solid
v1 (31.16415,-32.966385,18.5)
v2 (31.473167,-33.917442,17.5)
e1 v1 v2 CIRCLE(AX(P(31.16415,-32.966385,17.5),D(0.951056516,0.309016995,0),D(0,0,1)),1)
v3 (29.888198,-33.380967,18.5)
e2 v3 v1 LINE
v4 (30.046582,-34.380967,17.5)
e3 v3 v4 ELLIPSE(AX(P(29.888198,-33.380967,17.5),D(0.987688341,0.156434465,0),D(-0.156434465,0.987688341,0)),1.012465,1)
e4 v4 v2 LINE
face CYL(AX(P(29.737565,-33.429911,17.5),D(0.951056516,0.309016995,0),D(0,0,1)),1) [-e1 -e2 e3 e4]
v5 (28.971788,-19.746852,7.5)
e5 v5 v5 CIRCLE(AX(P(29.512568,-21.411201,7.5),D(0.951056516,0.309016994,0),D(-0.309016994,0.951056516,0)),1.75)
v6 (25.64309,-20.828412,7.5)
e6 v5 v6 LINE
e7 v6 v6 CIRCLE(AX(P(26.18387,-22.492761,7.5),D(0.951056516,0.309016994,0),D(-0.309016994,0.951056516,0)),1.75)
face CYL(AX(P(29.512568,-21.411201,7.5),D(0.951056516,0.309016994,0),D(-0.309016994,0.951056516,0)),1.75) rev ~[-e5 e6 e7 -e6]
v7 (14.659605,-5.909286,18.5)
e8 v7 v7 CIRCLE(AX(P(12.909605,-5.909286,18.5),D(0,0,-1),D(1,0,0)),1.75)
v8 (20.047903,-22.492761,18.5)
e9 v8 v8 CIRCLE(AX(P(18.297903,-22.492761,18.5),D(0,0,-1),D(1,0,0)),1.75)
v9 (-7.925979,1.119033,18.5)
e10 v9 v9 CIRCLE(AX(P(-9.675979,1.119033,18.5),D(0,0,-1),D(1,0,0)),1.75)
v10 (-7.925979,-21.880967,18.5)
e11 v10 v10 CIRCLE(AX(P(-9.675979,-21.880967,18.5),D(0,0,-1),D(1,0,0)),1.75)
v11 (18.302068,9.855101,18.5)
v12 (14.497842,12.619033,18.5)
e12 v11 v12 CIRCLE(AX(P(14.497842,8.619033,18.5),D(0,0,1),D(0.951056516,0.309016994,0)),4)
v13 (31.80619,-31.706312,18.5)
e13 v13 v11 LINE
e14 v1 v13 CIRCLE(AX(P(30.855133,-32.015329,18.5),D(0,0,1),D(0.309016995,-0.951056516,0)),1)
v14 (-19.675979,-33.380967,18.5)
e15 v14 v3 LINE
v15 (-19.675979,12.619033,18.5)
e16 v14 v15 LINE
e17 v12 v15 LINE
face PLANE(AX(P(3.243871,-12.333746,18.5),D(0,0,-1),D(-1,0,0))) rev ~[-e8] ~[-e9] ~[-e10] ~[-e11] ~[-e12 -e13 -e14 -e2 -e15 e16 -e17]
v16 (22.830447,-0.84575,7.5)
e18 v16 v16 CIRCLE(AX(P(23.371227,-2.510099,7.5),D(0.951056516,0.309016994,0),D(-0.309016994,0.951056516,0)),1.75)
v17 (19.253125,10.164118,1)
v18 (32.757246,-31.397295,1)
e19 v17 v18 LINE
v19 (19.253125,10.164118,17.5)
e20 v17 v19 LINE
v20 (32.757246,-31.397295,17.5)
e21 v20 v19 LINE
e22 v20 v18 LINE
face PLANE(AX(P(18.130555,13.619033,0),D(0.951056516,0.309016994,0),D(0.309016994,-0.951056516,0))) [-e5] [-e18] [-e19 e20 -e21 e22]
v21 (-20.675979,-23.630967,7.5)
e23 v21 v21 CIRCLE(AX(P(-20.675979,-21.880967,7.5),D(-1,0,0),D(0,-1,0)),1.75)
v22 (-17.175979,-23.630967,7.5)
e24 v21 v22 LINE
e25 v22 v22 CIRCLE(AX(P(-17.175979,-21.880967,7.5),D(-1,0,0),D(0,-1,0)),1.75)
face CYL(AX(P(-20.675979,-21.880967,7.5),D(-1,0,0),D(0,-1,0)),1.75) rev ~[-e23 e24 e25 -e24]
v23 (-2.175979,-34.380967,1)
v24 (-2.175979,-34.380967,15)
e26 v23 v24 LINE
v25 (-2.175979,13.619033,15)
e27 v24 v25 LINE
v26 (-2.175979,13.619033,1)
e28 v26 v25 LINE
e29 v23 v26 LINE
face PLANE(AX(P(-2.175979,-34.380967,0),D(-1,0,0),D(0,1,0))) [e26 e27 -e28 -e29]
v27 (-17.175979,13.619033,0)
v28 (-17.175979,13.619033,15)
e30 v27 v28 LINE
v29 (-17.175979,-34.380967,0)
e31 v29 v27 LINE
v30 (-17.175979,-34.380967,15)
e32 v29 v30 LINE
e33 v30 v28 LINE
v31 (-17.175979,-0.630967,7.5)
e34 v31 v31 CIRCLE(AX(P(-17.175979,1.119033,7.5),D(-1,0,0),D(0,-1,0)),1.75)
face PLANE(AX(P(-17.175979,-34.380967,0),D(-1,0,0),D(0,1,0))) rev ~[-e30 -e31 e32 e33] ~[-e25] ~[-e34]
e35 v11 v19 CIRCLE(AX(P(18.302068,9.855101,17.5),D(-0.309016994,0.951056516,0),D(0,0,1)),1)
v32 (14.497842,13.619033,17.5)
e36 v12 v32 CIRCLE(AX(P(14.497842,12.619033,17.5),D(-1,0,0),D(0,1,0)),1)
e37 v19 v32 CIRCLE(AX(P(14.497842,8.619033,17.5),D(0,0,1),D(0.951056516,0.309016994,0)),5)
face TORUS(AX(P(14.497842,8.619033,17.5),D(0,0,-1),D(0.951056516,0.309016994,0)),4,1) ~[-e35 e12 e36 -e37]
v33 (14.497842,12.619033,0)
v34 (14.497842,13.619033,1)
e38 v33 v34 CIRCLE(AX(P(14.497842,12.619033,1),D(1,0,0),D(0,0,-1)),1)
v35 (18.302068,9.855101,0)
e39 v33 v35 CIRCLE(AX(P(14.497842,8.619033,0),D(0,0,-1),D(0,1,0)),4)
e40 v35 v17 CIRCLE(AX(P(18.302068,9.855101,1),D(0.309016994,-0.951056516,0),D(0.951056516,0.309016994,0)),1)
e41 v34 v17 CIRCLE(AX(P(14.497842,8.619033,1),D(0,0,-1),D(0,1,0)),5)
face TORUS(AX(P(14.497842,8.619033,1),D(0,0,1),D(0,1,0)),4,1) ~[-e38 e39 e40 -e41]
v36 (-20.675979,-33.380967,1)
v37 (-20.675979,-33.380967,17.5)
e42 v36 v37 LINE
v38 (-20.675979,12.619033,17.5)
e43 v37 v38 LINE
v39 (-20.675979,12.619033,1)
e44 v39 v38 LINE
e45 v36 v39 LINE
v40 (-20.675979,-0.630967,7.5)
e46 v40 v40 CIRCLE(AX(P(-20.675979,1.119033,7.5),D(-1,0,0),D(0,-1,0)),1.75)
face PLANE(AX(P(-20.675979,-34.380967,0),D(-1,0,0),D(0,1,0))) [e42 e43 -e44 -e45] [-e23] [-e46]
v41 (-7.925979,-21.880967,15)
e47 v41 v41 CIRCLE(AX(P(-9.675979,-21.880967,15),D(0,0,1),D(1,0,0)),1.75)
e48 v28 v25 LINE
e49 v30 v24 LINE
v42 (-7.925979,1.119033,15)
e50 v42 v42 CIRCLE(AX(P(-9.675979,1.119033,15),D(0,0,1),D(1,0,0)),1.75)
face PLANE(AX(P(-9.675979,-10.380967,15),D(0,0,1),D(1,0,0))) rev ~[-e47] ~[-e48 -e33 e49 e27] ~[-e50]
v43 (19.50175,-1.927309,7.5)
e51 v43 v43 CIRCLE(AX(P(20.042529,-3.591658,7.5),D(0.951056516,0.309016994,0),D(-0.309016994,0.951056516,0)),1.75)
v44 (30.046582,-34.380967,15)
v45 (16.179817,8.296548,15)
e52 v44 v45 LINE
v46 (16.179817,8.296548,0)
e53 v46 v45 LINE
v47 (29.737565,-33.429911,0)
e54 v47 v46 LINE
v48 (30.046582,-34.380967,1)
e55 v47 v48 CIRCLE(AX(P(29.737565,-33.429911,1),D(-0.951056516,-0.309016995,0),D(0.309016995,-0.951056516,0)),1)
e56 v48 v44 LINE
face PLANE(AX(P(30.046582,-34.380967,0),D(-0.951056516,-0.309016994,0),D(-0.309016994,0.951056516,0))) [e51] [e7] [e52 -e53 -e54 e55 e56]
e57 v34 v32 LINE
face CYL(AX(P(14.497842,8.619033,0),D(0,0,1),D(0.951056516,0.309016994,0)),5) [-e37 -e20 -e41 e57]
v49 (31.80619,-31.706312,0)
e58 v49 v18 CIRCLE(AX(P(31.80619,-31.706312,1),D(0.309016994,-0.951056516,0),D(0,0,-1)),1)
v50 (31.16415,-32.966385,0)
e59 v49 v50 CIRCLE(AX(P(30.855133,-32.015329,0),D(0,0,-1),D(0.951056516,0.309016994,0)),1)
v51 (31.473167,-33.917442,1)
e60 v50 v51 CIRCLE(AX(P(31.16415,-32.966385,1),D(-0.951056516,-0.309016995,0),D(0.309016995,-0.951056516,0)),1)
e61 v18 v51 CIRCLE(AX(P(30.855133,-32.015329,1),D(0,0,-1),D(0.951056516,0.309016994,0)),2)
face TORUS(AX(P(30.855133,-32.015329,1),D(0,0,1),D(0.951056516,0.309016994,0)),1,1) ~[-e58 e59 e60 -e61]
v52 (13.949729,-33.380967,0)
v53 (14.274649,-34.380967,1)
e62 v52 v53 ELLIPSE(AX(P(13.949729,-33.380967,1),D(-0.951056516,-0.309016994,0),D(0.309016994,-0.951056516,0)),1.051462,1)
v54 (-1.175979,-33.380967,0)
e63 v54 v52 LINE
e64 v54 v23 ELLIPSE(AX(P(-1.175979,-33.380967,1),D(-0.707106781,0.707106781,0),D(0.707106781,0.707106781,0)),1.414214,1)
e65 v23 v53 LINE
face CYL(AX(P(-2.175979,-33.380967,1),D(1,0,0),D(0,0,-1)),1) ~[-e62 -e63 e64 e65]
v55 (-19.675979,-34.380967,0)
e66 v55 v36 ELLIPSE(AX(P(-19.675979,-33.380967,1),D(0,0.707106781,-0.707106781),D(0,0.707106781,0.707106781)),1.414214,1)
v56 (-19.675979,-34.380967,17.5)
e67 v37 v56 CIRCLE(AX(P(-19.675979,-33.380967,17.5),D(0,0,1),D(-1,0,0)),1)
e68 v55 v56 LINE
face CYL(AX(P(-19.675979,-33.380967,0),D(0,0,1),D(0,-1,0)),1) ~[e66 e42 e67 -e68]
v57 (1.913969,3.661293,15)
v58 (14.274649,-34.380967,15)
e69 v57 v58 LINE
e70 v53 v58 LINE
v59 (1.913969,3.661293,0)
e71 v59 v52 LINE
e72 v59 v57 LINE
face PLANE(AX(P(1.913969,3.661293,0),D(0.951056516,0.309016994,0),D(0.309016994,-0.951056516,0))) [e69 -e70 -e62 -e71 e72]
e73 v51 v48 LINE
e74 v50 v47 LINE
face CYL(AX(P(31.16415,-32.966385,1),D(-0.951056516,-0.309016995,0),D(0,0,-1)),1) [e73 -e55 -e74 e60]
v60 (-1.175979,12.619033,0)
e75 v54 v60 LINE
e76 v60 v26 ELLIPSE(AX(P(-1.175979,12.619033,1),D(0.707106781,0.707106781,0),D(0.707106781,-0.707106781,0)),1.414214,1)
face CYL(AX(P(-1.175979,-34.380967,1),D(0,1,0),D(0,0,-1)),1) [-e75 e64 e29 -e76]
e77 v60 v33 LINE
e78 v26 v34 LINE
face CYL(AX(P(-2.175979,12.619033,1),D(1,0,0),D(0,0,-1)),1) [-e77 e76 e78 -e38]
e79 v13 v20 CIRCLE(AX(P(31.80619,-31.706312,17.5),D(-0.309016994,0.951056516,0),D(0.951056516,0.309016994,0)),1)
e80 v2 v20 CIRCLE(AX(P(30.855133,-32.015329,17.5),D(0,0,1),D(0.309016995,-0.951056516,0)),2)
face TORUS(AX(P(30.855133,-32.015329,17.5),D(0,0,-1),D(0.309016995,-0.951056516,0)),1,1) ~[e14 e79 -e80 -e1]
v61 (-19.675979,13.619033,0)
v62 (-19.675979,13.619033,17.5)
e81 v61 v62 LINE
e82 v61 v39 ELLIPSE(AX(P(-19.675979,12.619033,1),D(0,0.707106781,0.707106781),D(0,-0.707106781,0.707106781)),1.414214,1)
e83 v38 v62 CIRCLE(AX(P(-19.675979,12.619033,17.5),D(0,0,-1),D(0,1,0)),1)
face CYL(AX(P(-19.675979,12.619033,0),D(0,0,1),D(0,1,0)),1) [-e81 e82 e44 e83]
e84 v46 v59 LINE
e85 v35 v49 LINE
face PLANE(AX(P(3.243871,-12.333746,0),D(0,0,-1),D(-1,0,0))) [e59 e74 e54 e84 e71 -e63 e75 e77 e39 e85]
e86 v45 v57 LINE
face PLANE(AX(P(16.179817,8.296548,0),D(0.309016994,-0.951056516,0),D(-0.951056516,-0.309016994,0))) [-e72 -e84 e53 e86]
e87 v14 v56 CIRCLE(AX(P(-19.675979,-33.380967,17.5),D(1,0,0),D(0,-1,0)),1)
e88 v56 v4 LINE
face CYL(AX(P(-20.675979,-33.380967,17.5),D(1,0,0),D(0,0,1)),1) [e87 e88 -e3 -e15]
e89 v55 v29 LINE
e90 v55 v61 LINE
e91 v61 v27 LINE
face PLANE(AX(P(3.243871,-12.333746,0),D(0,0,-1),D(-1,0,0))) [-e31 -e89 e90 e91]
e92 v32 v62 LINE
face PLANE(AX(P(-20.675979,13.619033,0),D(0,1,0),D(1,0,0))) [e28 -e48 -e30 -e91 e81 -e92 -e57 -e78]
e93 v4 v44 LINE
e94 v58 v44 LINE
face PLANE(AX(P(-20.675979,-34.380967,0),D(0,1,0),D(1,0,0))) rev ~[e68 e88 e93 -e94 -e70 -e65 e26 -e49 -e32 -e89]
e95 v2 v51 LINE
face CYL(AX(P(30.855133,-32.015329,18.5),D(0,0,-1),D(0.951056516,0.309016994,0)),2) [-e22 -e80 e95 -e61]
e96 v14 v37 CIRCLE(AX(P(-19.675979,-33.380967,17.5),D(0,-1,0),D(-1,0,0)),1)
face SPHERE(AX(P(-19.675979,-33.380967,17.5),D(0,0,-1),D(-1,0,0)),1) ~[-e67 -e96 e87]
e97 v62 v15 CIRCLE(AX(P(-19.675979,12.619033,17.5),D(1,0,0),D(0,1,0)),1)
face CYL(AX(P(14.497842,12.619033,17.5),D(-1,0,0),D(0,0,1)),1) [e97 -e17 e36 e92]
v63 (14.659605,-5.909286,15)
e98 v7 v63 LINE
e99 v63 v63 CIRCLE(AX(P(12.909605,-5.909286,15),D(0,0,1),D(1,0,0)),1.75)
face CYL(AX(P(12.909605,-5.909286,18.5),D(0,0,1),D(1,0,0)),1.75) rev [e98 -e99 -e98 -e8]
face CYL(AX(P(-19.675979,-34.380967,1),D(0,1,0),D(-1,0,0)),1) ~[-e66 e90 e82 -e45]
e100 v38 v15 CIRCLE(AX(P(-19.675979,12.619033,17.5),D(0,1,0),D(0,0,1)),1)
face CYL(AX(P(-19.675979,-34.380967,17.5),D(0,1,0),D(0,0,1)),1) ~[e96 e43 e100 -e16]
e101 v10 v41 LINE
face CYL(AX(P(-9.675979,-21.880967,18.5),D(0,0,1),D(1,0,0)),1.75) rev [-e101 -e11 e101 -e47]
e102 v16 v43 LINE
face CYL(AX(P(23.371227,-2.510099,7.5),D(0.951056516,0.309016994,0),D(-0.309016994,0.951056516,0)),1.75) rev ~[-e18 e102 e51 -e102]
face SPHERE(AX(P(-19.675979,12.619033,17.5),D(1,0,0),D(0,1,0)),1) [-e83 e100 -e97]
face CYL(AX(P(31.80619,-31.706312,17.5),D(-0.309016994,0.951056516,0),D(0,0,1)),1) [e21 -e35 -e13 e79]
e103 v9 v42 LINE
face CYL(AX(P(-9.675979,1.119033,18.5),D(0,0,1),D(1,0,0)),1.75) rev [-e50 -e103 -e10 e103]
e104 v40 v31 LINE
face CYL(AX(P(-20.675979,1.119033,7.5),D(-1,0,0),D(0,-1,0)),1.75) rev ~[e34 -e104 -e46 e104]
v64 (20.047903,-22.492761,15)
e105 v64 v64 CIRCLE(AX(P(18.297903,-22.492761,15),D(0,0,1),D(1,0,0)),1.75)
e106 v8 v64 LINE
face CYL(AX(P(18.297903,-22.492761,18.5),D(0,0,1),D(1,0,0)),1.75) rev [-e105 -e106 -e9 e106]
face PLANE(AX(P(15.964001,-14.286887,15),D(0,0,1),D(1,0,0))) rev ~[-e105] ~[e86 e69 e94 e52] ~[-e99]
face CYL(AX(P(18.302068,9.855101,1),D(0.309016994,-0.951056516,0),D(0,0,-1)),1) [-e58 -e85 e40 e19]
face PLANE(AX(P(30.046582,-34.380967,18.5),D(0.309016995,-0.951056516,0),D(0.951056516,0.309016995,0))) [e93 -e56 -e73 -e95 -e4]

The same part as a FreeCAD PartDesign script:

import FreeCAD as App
import Part
import Sketcher
from FreeCAD import Vector
Q = App.Units.Quantity


def edges_at(feature, points):
    """Names of the edges that pass closest to the given points."""
    edges = feature.Shape.Edges
    near = lambda p: min(range(len(edges)), key=lambda i: edges[i].distToShape(Part.Vertex(*p))[0])
    return sorted({f"Edge{near(p) + 1}" for p in points})


def add_polygon(sketch, points):
    """Adds a closed chain of lines whose ends are joined by coincident constraints."""
    first, n = sketch.GeometryCount, len(points)
    for a, b in zip(points, points[1:] + points[:1]):
        sketch.addGeometry(Part.LineSegment(App.Vector(*a, 0), App.Vector(*b, 0)), False)
    for i in range(n):
        sketch.addConstraint(Sketcher.Constraint("Coincident", first + i, 2, first + (i + 1) % n, 1))

doc = App.newDocument("Part")
params = doc.addObject("Spreadsheet::Sheet", "Params")
for row, (alias, value) in enumerate([
    ("sketch1_height", "48 mm"),
    ("pad1_length", "18.5 mm"),
    ("sketch2_width", "15 mm"),
    ("sketch2_height", "48 mm"),
    ("sketch2_length", "15 mm"),
    ("sketch2_length2", "40 mm"),
    ("pocket1_length", "15 mm"),
    ("sketch3_diameter", "3.5 mm"),
    ("pocket2_length", "3.5 mm"),
    ("sketch4_diameter", "3.5 mm"),
    ("pocket3_length", "4 mm"),
    ("sketch5_diameter", "3.5 mm"),
    ("pocket4_length", "4 mm"),
    ("sketch6_length", "3.5 mm"),
    ("pocket5_length", "19 mm"),
    ("fillet_radius", "2 mm"),
    ("fillet2_radius", "5 mm"),
    ("fillet3_radius", "1 mm"),
], start=1):
    params.set(f"A{row}", alias)
    params.set(f"B{row}", "=" + value)
    params.setAlias(f"B{row}", alias)

body = doc.addObject("PartDesign::Body", "Body")

sketch1 = body.newObject("Sketcher::SketchObject", "Sketch")
sketch1.AttachmentSupport = (doc.getObject("XY_Plane"), [""])
sketch1.MapMode = "FlatFace"
add_polygon(sketch1, [(34, -34), (18, 14), (-21, 14), (-21, -34)])
sketch1.addConstraint([
    Sketcher.Constraint("Horizontal", 1),
    Sketcher.Constraint("Vertical", 2),
    Sketcher.Constraint("Horizontal", 3),
    Sketcher.Constraint("DistanceY", 2, 2, 2, 1, 48.0),
    Sketcher.Constraint("Angle", 0, Q("108 deg")),
    Sketcher.Constraint("DistanceX", 3, 1, 3, 2, 54.402679),
    Sketcher.Constraint("DistanceX", -1, 1, 3, 2, 33.7267),
    Sketcher.Constraint("DistanceY", -1, 1, 0, 2, 13.619033),
])
sketch1.setExpression("Constraints[7]", "Params.sketch1_height")
pad1 = body.newObject("PartDesign::Pad", "Pad")
pad1.Profile = sketch1
pad1.setExpression("Length", "Params.pad1_length")

sketch2 = body.newObject("Sketcher::SketchObject", "Sketch001")
sketch2.AttachmentSupport = (doc.getObject("XY_Plane"), [""])
sketch2.MapMode = "FlatFace"
add_polygon(sketch2, [(-17, 14), (-17, -34), (-2, -34), (-2, 14)])
add_polygon(sketch2, [(30, -34), (16, 8), (2, 4), (14, -34)])
sketch2.addConstraint([
    Sketcher.Constraint("Vertical", 0),
    Sketcher.Constraint("Horizontal", 1),
    Sketcher.Constraint("Vertical", 2),
    Sketcher.Constraint("Horizontal", 3),
    Sketcher.Constraint("Horizontal", 7),
    Sketcher.Constraint("Perpendicular", 4, 5),
    Sketcher.Constraint("Perpendicular", 5, 6),
    Sketcher.Constraint("Horizontal", 1, 2, 6, 2),
    Sketcher.Constraint("DistanceX", 1, 1, 1, 2, 15.0),
    Sketcher.Constraint("DistanceY", 0, 2, 0, 1, 48.0),
    Sketcher.Constraint("Angle", 4, Q("108 deg")),
    Sketcher.Constraint("Distance", 5, 15.0),
    Sketcher.Constraint("Distance", 6, 40.0),
    Sketcher.Constraint("DistanceX", 0, 2, -1, 1, 17.175979),
    Sketcher.Constraint("DistanceY", -1, 1, 4, 2, 8.296548),
    Sketcher.Constraint("DistanceX", -1, 1, 5, 2, 1.913969),
])
sketch2.setExpression("Constraints[16]", "Params.sketch2_width")
sketch2.setExpression("Constraints[17]", "Params.sketch2_height")
sketch2.setExpression("Constraints[19]", "Params.sketch2_length")
sketch2.setExpression("Constraints[20]", "Params.sketch2_length2")
pocket1 = body.newObject("PartDesign::Pocket", "Pocket")
pocket1.Profile = sketch2
pocket1.setExpression("Length", "Params.pocket1_length")
pocket1.Reversed = True

sketch3 = body.newObject("Sketcher::SketchObject", "Sketch002")
sketch3.Placement = App.Placement(Vector(20.401774, 6.628938, 0), App.Rotation(Vector(0, 0, -1), Vector(-0.309016994, 0.951056516, 0), Vector(0.951056516, 0.309016994, 0), "ZXY"))
sketch3.addGeometry([
    Part.Circle(Vector(-7.5, -29.5, 0), Vector(0, 0, 1), 1.8),
    Part.Circle(Vector(-7.5, -9.6, 0), Vector(0, 0, 1), 1.8),
], False)
sketch3.addConstraint([
    Sketcher.Constraint("Equal", 0, 1),
    Sketcher.Constraint("Vertical", 0, 3, 1, 3),
    Sketcher.Constraint("Diameter", 0, 3.5),
    Sketcher.Constraint("DistanceX", 0, 3, -1, 1, 7.5),
    Sketcher.Constraint("DistanceY", 0, 3, -1, 1, 29.483147),
    Sketcher.Constraint("DistanceY", 1, 3, -1, 1, 9.609352),
])
sketch3.setExpression("Constraints[2]", "Params.sketch3_diameter")
pocket2 = body.newObject("PartDesign::Pocket", "Pocket001")
pocket2.Profile = sketch3
pocket2.setExpression("Length", "Params.pocket2_length")

sketch4 = body.newObject("Sketcher::SketchObject", "Sketch003")
sketch4.AttachmentSupport = (doc.getObject("XY_Plane"), [""])
sketch4.MapMode = "FlatFace"
sketch4.AttachmentOffset = App.Placement(Vector(0, 0, 18.5), App.Rotation())
sketch4.addGeometry([
    Part.Circle(Vector(18.3, -22.5, 0), Vector(0, 0, 1), 1.8),
    Part.Circle(Vector(12.9, -5.9, 0), Vector(0, 0, 1), 1.8),
    Part.Circle(Vector(-9.7, 1.1, 0), Vector(0, 0, 1), 1.8),
    Part.Circle(Vector(-9.7, -21.9, 0), Vector(0, 0, 1), 1.8),
], False)
sketch4.addConstraint([
    Sketcher.Constraint("Equal", 0, 1),
    Sketcher.Constraint("Equal", 1, 2),
    Sketcher.Constraint("Equal", 2, 3),
    Sketcher.Constraint("Vertical", 2, 3, 3, 3),
    Sketcher.Constraint("Diameter", 0, 3.5),
    Sketcher.Constraint("DistanceY", 3, 3, 2, 3, 23.0),
    Sketcher.Constraint("DistanceY", 0, 3, -1, 1, 22.492761),
    Sketcher.Constraint("DistanceX", 2, 3, -1, 1, 9.675979),
    Sketcher.Constraint("DistanceY", 1, 3, 2, 3, 7.028318),
    Sketcher.Constraint("DistanceX", 2, 3, 0, 3, 27.973882),
    Sketcher.Constraint("DistanceX", -1, 1, 1, 3, 12.909605),
    Sketcher.Constraint("DistanceY", 1, 3, -1, 1, 5.909286),
])
sketch4.setExpression("Constraints[4]", "Params.sketch4_diameter")
pocket3 = body.newObject("PartDesign::Pocket", "Pocket002")
pocket3.Profile = sketch4
pocket3.setExpression("Length", "Params.pocket3_length")

sketch5 = body.newObject("Sketcher::SketchObject", "Sketch004")
sketch5.AttachmentSupport = (doc.getObject("YZ_Plane"), [""])
sketch5.MapMode = "FlatFace"
sketch5.AttachmentOffset = App.Placement(Vector(0, 0, -20.675979), App.Rotation())
sketch5.addGeometry([
    Part.Circle(Vector(-21.9, 7.5, 0), Vector(0, 0, 1), 1.8),
    Part.Circle(Vector(1.1, 7.5, 0), Vector(0, 0, 1), 1.8),
], False)
sketch5.addConstraint([
    Sketcher.Constraint("Equal", 0, 1),
    Sketcher.Constraint("Horizontal", 0, 3, 1, 3),
    Sketcher.Constraint("Diameter", 0, 3.5),
    Sketcher.Constraint("DistanceX", 0, 3, 1, 3, 23.0),
    Sketcher.Constraint("DistanceY", -1, 1, 0, 3, 7.5),
    Sketcher.Constraint("DistanceX", 0, 3, -1, 1, 21.880967),
])
sketch5.setExpression("Constraints[2]", "Params.sketch5_diameter")
pocket4 = body.newObject("PartDesign::Pocket", "Pocket003")
pocket4.Profile = sketch5
pocket4.setExpression("Length", "Params.pocket4_length")
pocket4.Reversed = True

sketch6 = body.newObject("Sketcher::SketchObject", "Sketch005")
sketch6.AttachmentSupport = (doc.getObject("XY_Plane"), [""])
sketch6.MapMode = "FlatFace"
sketch6.AttachmentOffset = App.Placement(Vector(0, 0, 18.5), App.Rotation())
add_polygon(sketch6, [(33.4, -33.3), (30, -34.4), (33.7, -34.4)])
sketch6.addConstraint([
    Sketcher.Constraint("Horizontal", 1),
    Sketcher.Constraint("Perpendicular", 0, 2),
    Sketcher.Constraint("Angle", 0, Q("-162 deg")),
    Sketcher.Constraint("Distance", 0, 3.5),
    Sketcher.Constraint("DistanceX", -1, 1, 1, 2, 33.7267),
    Sketcher.Constraint("DistanceY", 0, 2, -1, 1, 34.380967),
])
sketch6.setExpression("Constraints[6]", "Params.sketch6_length")
pocket5 = body.newObject("PartDesign::Pocket", "Pocket004")
pocket5.Profile = sketch6
pocket5.setExpression("Length", "Params.pocket5_length")
doc.recompute()

fillet = body.newObject("PartDesign::Fillet", "Fillet")
fillet.Base = (pocket5, edges_at(pocket5, [(33.375, -33.299, 9.25)]))
fillet.setExpression("Radius", "Params.fillet_radius")
doc.recompute()

fillet2 = body.newObject("PartDesign::Fillet", "Fillet001")
fillet2.Base = (fillet, edges_at(fillet, [(18.131, 13.619, 9.25)]))
fillet2.setExpression("Radius", "Params.fillet2_radius")
doc.recompute()

fillet3 = body.newObject("PartDesign::Fillet", "Fillet002")
fillet3.Base = (fillet2, edges_at(fillet2, [
    (30.76, -34.149, 0),
    (32.637, -32.923, 0),
    (6.161, 13.619, 0),
    (17.437, 12.664, 0),
    (30.76, -34.149, 18.5),
    (32.637, -32.923, 18.5),
    (-3.089, 13.619, 18.5),
    (17.437, 12.664, 18.5),
    (-20.676, 13.619, 9.25),
    (-20.676, -34.381, 9.25),
    (-20.676, -10.381, 0),
    (6.049, -34.381, 0),
    (-2.176, -10.381, 0),
    (26.005, -10.617, 0),
    (-20.676, -10.381, 18.5),
    (4.685, -34.381, 18.5),
    (26.005, -10.617, 18.5),
]))
fillet3.setExpression("Radius", "Params.fillet3_radius")

doc.recompute()
